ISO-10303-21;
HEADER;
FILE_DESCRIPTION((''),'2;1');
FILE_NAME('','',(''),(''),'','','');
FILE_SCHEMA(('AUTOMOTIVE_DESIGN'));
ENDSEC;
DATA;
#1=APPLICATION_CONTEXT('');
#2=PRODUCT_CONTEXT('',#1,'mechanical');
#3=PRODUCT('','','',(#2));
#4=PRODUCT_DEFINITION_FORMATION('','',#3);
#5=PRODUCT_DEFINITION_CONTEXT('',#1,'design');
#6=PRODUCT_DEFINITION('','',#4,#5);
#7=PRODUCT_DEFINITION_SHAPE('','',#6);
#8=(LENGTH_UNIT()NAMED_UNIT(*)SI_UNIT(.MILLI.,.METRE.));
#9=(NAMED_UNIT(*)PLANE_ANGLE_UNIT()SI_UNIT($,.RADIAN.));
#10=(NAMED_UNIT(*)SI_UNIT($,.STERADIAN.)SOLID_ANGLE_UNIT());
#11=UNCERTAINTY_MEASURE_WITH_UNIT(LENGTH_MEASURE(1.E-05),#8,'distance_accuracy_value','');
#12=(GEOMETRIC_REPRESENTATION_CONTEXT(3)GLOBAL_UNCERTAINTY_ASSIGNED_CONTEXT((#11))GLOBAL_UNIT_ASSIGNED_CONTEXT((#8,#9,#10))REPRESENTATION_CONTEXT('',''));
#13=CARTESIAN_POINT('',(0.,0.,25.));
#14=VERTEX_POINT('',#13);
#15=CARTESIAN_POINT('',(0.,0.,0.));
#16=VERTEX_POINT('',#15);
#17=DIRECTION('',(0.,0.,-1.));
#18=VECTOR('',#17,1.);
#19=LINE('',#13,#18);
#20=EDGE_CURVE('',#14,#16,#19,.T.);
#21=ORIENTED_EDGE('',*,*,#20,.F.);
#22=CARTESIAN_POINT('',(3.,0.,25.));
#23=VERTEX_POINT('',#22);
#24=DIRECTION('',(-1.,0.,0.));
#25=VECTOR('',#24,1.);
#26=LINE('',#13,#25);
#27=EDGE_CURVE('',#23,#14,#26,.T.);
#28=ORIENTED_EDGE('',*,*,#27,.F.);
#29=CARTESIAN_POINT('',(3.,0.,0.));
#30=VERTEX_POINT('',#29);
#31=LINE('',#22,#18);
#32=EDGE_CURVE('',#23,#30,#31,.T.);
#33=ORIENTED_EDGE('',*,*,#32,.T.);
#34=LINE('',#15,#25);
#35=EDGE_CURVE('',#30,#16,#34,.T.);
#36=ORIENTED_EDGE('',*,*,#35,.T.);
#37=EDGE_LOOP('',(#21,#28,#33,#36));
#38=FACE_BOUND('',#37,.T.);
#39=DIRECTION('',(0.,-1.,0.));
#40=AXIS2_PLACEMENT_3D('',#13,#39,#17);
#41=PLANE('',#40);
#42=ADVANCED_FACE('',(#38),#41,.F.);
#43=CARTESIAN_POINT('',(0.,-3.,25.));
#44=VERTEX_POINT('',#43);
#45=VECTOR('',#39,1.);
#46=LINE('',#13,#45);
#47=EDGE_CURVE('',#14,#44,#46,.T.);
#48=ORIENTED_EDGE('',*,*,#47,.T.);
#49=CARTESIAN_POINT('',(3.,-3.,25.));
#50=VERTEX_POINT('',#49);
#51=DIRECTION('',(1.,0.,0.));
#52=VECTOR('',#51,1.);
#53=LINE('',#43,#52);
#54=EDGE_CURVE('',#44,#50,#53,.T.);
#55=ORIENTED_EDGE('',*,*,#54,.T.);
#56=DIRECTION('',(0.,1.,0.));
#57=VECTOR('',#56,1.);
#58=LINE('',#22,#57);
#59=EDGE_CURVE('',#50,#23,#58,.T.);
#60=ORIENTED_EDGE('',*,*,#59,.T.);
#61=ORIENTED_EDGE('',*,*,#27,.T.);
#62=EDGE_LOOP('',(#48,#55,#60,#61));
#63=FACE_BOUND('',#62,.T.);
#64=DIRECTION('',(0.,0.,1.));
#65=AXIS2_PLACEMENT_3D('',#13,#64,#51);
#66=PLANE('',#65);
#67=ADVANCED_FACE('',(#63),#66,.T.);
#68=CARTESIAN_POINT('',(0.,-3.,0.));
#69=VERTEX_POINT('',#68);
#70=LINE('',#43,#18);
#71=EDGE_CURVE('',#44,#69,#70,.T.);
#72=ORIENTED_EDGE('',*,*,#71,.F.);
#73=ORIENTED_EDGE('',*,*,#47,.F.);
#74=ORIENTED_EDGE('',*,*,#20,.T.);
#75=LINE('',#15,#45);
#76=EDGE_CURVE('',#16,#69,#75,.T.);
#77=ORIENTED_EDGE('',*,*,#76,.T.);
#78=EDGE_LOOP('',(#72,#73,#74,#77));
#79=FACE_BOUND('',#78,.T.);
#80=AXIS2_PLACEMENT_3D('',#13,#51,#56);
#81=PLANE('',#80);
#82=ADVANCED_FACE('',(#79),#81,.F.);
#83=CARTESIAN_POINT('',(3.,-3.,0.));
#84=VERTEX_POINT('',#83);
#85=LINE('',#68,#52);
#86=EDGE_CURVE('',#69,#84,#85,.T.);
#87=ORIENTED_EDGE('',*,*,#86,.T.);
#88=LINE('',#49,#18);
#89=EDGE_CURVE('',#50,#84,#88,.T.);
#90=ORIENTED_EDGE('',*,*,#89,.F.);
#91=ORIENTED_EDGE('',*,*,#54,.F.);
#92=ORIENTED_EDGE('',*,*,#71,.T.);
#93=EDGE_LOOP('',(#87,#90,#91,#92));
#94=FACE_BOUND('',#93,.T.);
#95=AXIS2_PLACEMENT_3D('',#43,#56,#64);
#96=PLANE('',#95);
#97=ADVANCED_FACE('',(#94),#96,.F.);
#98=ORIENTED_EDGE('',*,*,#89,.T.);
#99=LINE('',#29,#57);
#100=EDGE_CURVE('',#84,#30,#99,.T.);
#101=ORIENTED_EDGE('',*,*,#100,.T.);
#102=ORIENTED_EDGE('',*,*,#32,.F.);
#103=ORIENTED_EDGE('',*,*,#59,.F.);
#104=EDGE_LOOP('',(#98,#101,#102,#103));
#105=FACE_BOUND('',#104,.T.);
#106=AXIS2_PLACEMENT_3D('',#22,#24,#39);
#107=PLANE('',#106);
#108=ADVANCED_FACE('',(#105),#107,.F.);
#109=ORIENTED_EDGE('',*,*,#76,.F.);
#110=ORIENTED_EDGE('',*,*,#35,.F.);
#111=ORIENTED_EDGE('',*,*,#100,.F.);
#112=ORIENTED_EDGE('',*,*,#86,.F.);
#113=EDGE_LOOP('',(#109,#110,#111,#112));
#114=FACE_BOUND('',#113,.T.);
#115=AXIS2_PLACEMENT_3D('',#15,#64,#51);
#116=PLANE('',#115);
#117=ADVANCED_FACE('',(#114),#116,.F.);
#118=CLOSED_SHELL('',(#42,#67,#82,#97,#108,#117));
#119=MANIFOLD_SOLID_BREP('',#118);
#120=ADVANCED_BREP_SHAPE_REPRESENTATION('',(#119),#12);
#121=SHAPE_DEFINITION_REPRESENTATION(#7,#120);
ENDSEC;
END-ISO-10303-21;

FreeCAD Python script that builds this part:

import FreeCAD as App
import Part
import Sketcher


def add_polygon(sketch, points):
    """Adds a closed chain of lines whose ends are joined by coincident constraints."""
    first, n = sketch.GeometryCount, len(points)
    for a, b in zip(points, points[1:] + points[:1]):
        sketch.addGeometry(Part.LineSegment(App.Vector(*a, 0), App.Vector(*b, 0)), False)
    for i in range(n):
        sketch.addConstraint(Sketcher.Constraint("Coincident", first + i, 2, first + (i + 1) % n, 1))

doc = App.newDocument("Part")
body = doc.addObject("PartDesign::Body", "Body")

# Sketch on XY plane
sketch1 = doc.addObject("Sketcher::SketchObject", "Sketch")
body.addObject(sketch1)
sketch1.AttachmentSupport = (doc.XY_Plane, [""])
sketch1.MapMode = "FlatFace"
add_polygon(sketch1, [(0, 0), (0, -3), (3, -3), (3, 0)])  # lines 0-3
sketch1.addConstraint(Sketcher.Constraint("Vertical", 0))
sketch1.addConstraint(Sketcher.Constraint("Horizontal", 1))
sketch1.addConstraint(Sketcher.Constraint("Vertical", 2))
sketch1.addConstraint(Sketcher.Constraint("Horizontal", 3))
sketch1.addConstraint(Sketcher.Constraint("Coincident", 3, 2, -1, 1))
sketch1.addConstraint(Sketcher.Constraint("Equal", 3, 0))
sketch1.addConstraint(Sketcher.Constraint("DistanceX", 1, 1, 1, 2, 3.0))
pad1 = doc.addObject("PartDesign::Pad", "Pad")
body.addObject(pad1)
pad1.Profile = sketch1
pad1.Length = 25

doc.recompute()
